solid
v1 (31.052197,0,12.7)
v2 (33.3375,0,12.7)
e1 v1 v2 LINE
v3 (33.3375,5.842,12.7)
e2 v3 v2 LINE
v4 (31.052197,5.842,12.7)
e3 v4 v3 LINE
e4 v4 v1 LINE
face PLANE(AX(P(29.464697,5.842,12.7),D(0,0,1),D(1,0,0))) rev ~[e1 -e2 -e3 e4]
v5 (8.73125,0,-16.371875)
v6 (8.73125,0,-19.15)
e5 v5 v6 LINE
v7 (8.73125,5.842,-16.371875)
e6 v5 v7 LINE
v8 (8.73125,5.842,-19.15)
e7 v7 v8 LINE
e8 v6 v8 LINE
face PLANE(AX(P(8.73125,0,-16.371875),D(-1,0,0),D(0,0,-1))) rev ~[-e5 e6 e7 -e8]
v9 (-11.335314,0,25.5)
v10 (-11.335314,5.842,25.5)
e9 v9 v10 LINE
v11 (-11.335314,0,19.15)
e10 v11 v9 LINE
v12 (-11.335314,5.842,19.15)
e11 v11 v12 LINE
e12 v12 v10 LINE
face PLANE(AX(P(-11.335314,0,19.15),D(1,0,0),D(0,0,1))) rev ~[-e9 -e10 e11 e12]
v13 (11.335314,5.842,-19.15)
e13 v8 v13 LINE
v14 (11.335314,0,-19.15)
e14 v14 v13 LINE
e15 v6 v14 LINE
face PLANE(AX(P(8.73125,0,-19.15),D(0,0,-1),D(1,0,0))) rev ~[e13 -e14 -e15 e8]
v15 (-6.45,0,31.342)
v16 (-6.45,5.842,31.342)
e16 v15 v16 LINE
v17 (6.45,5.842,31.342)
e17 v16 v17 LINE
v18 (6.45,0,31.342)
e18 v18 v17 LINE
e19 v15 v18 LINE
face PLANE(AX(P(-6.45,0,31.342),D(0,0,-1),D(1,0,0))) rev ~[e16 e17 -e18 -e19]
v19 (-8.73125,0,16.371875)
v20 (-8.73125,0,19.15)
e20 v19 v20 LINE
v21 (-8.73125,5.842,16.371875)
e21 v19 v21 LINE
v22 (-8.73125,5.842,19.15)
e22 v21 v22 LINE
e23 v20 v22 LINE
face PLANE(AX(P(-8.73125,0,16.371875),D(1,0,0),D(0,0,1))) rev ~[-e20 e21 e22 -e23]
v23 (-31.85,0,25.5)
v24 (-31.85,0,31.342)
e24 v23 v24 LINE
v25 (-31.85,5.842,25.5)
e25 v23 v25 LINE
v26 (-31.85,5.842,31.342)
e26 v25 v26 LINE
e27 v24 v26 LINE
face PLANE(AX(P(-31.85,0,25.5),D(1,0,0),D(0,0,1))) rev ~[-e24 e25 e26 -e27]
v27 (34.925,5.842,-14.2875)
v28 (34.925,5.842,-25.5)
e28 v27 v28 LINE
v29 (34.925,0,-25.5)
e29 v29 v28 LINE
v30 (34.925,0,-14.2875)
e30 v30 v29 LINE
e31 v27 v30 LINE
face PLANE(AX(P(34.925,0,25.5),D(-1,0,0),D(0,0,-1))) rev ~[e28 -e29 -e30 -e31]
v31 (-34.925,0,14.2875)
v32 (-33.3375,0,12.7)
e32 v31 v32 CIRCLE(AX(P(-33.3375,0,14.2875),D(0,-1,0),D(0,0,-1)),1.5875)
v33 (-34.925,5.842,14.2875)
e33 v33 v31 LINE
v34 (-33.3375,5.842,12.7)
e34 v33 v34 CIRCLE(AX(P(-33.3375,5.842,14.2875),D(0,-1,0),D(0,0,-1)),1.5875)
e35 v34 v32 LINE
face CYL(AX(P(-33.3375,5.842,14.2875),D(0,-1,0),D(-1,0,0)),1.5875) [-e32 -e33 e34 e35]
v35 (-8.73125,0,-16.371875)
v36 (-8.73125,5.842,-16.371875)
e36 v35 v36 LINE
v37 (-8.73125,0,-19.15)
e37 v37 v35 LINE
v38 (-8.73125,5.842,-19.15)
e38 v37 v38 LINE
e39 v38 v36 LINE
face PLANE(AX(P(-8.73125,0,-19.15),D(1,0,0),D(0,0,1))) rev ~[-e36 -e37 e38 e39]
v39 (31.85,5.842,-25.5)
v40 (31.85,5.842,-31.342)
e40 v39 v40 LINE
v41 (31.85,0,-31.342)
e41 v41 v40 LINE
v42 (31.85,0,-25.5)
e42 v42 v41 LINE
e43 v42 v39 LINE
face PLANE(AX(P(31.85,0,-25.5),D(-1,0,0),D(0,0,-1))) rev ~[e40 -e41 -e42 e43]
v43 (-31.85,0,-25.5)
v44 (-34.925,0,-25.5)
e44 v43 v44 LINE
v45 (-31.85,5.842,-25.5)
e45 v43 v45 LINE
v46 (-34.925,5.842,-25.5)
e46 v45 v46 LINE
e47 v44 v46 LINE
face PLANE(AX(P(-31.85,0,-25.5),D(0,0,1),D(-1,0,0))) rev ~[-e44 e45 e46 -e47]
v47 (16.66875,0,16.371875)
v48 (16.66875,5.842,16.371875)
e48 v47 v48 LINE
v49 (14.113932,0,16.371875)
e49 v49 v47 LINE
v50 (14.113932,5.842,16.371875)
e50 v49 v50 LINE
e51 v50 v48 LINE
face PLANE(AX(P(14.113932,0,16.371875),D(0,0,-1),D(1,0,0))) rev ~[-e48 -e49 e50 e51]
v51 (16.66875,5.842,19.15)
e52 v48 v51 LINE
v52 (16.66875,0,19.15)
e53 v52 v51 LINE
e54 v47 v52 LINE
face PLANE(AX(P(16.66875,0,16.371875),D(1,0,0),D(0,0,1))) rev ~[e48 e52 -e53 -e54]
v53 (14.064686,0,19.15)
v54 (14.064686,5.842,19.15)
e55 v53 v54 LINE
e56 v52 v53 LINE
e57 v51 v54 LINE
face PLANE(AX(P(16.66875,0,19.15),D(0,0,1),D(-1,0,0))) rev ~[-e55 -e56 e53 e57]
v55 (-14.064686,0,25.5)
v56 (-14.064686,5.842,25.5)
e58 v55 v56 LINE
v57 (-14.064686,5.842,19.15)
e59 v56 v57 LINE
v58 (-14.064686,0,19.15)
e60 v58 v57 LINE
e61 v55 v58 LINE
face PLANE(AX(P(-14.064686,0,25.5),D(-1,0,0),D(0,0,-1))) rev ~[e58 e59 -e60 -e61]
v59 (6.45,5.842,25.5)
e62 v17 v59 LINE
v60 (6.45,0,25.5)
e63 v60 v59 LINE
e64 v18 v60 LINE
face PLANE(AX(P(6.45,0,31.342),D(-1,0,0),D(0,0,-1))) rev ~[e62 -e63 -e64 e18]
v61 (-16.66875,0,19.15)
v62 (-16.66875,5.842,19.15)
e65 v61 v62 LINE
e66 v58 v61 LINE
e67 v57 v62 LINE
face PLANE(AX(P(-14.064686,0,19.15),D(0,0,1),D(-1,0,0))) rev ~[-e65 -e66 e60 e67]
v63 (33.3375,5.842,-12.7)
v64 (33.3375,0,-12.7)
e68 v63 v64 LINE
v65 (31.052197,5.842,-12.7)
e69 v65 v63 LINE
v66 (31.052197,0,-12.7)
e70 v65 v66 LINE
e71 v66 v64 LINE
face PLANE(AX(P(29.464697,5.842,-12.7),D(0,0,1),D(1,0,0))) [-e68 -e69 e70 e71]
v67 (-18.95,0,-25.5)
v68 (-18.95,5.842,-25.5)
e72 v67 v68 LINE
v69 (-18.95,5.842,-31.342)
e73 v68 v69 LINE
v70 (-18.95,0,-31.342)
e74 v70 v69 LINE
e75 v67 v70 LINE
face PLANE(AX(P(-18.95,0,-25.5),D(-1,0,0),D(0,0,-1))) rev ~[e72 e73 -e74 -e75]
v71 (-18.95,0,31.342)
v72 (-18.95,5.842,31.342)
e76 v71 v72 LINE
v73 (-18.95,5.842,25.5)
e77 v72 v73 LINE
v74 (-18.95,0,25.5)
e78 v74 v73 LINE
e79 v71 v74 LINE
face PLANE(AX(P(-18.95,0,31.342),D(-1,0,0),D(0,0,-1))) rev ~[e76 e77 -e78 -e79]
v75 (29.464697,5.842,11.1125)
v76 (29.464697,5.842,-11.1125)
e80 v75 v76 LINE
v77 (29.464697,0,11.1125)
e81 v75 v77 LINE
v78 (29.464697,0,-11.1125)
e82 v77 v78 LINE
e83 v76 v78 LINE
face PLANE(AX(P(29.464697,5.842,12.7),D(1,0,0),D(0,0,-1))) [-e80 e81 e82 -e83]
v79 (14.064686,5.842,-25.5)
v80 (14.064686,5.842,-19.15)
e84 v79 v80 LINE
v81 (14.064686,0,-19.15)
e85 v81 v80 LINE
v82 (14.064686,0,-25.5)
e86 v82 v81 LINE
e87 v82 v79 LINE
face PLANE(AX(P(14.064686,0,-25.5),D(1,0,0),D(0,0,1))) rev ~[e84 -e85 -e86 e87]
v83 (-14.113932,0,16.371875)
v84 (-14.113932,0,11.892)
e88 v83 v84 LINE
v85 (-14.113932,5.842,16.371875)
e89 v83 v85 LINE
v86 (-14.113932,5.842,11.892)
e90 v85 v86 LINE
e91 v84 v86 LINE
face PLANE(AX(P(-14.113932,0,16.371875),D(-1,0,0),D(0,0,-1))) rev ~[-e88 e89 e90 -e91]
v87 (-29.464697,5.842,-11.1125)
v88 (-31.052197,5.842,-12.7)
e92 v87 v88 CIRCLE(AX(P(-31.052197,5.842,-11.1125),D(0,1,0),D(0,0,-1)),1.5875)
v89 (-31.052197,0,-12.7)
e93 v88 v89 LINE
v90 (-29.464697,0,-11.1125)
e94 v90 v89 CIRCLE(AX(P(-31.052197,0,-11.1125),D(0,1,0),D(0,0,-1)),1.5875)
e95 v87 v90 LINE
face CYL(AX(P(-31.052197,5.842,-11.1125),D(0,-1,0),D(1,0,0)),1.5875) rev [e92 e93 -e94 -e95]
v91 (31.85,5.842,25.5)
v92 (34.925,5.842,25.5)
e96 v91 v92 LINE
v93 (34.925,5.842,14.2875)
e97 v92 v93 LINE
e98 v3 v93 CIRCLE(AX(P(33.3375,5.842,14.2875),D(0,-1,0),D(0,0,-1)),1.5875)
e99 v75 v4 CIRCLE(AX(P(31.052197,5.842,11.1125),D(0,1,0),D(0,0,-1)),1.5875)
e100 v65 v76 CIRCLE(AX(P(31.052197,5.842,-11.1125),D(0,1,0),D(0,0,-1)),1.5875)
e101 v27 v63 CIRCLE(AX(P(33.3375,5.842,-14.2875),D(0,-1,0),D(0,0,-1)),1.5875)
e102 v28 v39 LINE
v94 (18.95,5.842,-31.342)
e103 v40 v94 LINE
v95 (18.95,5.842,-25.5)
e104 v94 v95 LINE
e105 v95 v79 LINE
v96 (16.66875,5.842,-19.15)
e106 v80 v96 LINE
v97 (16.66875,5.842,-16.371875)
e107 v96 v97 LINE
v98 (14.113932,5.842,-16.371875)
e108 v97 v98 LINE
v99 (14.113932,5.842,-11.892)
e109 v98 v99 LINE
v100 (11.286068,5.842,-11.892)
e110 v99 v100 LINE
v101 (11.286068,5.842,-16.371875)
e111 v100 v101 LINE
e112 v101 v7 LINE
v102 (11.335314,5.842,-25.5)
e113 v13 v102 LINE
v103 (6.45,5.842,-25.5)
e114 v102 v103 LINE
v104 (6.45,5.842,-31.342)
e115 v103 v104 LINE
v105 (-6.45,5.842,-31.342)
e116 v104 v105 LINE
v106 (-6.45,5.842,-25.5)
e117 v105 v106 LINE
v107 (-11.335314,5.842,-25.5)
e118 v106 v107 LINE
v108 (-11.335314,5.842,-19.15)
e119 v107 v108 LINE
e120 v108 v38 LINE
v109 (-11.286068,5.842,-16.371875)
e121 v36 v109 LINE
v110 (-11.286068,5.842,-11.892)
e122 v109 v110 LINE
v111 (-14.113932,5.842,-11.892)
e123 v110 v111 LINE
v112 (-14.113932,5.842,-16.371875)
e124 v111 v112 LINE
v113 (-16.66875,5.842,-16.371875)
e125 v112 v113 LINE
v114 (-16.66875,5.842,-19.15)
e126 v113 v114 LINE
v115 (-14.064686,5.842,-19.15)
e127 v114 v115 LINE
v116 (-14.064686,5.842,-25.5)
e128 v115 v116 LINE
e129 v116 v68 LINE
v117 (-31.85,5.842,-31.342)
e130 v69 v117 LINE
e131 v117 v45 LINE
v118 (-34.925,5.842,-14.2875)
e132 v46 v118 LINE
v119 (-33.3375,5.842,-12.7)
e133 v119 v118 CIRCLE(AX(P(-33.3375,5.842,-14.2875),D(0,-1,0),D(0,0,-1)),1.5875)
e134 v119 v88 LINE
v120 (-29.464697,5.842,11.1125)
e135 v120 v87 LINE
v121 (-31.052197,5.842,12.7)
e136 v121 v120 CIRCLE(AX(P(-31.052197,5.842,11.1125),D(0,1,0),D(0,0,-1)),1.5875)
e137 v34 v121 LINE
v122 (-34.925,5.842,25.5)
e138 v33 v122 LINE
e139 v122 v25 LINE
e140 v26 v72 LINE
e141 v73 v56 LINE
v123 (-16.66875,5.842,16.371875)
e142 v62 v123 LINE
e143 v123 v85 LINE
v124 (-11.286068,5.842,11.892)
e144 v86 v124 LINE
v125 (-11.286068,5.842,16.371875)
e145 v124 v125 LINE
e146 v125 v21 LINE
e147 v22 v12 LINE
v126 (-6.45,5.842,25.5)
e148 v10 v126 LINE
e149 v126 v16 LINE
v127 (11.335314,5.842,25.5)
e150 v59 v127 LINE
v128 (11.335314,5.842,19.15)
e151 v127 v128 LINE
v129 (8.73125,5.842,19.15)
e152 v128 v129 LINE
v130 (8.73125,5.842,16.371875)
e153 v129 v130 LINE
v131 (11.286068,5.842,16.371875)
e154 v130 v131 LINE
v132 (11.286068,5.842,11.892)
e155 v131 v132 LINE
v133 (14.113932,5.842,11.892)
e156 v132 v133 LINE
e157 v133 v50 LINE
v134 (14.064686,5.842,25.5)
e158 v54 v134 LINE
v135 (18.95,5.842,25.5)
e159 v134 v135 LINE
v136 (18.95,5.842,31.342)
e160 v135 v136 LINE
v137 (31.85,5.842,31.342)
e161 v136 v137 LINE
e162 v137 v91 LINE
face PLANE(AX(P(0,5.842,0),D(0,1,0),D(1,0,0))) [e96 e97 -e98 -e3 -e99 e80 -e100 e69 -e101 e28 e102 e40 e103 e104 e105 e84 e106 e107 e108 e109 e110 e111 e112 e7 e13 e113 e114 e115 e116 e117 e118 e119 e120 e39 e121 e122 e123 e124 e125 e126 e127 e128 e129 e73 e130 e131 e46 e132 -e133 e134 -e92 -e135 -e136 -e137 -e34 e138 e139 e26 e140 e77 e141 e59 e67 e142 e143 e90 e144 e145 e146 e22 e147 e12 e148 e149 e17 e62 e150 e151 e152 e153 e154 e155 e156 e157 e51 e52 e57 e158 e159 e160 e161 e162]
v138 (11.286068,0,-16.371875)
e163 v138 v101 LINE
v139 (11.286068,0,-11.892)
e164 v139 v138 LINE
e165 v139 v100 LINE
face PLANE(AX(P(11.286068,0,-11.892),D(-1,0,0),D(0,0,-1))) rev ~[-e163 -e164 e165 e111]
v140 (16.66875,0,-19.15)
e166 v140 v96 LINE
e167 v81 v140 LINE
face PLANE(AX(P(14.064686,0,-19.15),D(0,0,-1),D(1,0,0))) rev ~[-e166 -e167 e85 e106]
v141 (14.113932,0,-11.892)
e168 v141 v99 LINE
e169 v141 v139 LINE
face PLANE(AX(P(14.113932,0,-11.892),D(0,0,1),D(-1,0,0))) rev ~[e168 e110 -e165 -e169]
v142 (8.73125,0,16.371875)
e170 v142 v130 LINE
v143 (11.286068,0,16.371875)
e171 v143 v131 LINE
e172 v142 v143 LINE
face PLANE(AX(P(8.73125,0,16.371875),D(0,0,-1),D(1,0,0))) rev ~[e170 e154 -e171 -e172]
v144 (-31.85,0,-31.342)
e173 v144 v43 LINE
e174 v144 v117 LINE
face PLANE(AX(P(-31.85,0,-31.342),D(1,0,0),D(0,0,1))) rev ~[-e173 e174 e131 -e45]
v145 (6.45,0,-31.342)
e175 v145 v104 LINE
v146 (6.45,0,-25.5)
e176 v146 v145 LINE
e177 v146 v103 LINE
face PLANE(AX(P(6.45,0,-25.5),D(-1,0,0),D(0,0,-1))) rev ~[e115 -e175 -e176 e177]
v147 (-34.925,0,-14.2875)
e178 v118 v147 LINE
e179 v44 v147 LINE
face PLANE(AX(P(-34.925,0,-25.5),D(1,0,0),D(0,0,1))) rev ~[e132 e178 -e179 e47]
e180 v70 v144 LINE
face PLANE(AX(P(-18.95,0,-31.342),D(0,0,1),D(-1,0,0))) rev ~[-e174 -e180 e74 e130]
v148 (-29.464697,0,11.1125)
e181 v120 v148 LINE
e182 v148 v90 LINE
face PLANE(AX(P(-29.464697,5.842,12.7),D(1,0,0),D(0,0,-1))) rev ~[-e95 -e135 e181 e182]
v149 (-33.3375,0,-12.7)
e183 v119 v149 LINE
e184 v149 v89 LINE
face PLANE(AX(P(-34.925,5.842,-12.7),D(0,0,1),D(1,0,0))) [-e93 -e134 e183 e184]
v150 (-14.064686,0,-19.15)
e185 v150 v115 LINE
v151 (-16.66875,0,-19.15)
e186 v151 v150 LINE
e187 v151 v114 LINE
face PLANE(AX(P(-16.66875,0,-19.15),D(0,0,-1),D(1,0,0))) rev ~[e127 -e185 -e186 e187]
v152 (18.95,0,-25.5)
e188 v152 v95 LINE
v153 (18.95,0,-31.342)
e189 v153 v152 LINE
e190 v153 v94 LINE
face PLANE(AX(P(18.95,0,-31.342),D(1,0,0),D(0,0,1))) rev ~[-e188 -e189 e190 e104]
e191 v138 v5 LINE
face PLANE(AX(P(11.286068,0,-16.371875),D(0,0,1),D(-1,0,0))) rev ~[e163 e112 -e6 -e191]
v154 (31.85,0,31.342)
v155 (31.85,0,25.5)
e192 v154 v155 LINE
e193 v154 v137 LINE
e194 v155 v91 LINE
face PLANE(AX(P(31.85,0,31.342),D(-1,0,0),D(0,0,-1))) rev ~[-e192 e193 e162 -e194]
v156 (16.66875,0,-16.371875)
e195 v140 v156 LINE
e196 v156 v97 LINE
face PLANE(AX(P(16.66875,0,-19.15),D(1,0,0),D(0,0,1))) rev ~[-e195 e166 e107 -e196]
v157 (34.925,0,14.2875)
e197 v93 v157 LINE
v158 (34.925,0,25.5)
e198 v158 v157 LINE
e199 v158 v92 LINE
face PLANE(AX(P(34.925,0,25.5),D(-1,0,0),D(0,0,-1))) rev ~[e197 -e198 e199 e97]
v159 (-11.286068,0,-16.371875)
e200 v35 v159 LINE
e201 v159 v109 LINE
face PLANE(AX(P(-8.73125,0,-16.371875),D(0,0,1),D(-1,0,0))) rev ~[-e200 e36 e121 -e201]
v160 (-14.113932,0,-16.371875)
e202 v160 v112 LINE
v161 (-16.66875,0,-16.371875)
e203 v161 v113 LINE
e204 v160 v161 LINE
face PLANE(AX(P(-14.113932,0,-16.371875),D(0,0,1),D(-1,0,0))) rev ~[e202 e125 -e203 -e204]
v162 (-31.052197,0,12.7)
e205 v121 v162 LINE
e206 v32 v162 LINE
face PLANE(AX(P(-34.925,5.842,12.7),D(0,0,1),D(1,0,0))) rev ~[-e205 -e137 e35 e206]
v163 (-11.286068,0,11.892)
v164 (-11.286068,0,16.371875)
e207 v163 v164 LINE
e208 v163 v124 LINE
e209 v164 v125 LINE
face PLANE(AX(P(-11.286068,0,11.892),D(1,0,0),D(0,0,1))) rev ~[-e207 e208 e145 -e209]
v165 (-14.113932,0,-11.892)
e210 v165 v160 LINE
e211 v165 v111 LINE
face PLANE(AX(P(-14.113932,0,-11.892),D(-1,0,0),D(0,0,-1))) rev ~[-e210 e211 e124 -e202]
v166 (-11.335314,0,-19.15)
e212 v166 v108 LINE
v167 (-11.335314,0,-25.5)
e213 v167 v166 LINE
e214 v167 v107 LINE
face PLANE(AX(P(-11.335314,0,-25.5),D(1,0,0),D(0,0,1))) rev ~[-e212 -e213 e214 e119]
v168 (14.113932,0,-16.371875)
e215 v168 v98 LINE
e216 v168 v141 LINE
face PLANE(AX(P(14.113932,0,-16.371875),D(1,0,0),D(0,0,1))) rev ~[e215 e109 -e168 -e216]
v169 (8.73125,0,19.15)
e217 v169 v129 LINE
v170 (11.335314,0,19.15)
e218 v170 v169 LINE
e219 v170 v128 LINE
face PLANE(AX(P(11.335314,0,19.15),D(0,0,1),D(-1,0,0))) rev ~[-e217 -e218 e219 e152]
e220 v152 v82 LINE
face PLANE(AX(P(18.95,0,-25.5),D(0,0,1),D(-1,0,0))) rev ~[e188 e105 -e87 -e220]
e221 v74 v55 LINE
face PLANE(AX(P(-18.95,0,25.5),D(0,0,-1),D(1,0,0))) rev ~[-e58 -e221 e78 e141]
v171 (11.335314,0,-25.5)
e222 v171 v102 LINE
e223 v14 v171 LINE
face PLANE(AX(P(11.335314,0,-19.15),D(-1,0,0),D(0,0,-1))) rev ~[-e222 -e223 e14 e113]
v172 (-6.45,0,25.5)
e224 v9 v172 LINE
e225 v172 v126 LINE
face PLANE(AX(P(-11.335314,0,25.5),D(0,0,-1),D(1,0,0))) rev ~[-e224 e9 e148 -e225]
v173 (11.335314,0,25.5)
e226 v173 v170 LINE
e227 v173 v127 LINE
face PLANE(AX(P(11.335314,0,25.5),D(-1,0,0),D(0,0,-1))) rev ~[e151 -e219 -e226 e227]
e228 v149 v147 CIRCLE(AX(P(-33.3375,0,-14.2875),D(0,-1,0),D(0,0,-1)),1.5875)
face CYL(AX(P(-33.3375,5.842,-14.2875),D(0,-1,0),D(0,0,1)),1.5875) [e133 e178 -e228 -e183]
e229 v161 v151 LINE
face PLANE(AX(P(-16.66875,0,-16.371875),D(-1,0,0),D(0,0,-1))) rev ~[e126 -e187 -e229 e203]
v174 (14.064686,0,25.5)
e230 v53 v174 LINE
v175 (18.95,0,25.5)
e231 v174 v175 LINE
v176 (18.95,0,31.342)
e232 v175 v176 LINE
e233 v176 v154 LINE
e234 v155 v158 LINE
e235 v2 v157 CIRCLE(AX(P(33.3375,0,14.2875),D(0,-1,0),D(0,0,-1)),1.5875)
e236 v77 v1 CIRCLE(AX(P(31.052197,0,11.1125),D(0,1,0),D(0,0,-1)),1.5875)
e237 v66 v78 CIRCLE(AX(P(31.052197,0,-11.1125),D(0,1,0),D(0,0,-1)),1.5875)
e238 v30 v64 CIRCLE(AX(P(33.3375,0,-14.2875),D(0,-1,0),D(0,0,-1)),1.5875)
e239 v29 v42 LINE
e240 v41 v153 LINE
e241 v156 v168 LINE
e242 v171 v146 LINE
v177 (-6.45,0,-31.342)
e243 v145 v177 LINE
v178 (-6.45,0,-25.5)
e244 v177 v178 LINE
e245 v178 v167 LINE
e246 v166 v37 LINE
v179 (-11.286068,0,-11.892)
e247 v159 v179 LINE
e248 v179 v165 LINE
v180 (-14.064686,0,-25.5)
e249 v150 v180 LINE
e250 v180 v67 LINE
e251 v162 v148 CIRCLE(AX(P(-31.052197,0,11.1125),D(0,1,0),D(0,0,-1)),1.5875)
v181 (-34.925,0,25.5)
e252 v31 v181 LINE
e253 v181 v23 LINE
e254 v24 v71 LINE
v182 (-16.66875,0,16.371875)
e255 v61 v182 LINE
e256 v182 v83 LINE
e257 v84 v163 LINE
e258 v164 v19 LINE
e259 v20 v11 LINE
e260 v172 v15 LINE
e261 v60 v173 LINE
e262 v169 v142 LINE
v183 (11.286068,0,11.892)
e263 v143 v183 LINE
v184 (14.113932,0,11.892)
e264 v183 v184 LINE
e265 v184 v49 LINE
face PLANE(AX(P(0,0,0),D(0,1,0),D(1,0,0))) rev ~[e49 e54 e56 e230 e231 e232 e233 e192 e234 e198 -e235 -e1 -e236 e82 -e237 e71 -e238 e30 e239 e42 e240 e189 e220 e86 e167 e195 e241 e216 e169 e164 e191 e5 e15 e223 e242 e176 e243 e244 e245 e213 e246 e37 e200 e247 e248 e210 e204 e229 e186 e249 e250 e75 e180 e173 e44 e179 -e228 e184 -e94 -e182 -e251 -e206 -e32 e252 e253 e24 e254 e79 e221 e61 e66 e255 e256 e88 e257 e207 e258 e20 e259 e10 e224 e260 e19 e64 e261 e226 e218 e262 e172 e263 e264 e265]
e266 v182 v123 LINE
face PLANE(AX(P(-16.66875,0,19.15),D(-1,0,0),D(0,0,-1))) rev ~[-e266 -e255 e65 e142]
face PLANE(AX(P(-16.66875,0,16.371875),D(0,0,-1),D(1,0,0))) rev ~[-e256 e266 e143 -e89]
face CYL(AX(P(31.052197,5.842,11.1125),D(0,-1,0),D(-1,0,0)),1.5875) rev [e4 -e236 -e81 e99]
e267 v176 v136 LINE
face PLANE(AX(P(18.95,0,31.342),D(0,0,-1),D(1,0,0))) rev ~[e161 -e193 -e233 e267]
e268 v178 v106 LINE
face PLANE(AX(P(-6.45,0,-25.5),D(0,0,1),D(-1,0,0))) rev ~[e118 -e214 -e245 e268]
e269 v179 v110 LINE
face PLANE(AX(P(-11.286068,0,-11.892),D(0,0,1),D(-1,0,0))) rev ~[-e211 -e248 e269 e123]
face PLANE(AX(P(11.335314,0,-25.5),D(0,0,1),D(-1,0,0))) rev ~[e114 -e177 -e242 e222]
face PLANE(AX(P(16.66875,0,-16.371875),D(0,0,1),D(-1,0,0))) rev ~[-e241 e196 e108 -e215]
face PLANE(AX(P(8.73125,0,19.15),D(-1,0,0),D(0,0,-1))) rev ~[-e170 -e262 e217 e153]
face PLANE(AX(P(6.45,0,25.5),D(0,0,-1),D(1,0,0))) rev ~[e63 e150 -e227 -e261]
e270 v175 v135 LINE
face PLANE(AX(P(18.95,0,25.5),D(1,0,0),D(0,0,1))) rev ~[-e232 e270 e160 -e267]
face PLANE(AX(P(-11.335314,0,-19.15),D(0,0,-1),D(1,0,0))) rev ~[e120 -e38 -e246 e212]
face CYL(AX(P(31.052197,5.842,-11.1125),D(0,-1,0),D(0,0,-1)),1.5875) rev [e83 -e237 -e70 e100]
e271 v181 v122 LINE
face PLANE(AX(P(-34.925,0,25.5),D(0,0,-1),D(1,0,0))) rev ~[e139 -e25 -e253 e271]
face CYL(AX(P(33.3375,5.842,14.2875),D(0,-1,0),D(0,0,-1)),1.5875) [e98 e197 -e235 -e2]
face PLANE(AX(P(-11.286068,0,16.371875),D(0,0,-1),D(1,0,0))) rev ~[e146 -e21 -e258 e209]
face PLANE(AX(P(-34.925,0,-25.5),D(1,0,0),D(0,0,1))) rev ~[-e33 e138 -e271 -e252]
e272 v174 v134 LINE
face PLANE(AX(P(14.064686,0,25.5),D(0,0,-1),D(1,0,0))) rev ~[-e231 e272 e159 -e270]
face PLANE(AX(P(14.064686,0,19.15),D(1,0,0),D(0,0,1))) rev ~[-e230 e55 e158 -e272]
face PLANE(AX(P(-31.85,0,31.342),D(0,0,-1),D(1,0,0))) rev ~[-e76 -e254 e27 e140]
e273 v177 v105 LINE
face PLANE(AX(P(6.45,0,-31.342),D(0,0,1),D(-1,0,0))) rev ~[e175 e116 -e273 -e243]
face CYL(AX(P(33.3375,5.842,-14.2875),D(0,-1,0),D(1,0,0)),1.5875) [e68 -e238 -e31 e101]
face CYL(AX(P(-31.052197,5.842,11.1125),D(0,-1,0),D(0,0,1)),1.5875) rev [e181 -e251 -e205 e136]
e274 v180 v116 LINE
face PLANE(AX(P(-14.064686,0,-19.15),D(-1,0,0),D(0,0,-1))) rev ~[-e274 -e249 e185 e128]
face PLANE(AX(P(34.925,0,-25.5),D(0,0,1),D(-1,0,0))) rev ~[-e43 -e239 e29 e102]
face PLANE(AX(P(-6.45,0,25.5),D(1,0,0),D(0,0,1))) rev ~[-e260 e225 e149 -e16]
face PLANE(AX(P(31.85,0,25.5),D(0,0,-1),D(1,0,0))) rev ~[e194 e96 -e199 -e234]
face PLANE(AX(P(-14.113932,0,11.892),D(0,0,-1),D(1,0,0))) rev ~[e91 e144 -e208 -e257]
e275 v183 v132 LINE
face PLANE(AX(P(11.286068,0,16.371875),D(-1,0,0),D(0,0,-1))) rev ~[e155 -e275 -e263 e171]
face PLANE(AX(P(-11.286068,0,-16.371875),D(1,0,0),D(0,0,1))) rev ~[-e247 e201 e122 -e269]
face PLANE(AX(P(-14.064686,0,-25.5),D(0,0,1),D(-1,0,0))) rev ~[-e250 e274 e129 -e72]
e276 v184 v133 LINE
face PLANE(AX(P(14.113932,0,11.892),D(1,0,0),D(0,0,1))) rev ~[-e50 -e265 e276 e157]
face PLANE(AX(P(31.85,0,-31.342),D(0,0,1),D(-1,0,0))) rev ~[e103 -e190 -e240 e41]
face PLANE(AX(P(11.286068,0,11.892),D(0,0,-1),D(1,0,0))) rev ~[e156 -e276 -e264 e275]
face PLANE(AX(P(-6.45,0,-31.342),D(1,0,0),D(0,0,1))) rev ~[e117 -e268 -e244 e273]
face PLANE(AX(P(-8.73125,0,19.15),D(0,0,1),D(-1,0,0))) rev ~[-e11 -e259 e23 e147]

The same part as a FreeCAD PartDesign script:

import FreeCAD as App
import Part
import Sketcher
Q = App.Units.Quantity


def edges_at(feature, points):
    """Names of the edges that pass closest to the given points."""
    edges = feature.Shape.Edges
    near = lambda p: min(range(len(edges)), key=lambda i: edges[i].distToShape(Part.Vertex(*p))[0])
    return sorted({f"Edge{near(p) + 1}" for p in points})

doc = App.newDocument("Part")
body = doc.addObject("PartDesign::Body", "Body")

# Sketch on XZ plane
sketch1 = body.newObject("Sketcher::SketchObject", "Sketch")
sketch1.AttachmentSupport = (doc.getObject("XZ_Plane"), [""])
sketch1.MapMode = "FlatFace"
sketch1.addGeometry(Part.LineSegment(App.Vector(-6.45, -31.342, 0), App.Vector(-6.45, -25.5, 0)), False)
sketch1.addGeometry(Part.LineSegment(App.Vector(-6.45, -25.5, 0), App.Vector(-11.335314, -25.5, 0)), False)
sketch1.addGeometry(Part.LineSegment(App.Vector(-11.335314, -25.5, 0), App.Vector(-11.335314, -19.15, 0)), False)
sketch1.addGeometry(Part.LineSegment(App.Vector(-11.335314, -19.15, 0), App.Vector(-8.73125, -19.15, 0)), False)
sketch1.addGeometry(Part.LineSegment(App.Vector(-8.73125, -19.15, 0), App.Vector(-8.73125, -16.371875, 0)), False)
sketch1.addGeometry(Part.LineSegment(App.Vector(-8.73125, -16.371875, 0), App.Vector(-11.286068, -16.371875, 0)), False)
sketch1.addGeometry(Part.LineSegment(App.Vector(-11.286068, -16.371875, 0), App.Vector(-11.286068, -11.892, 0)), False)
sketch1.addGeometry(Part.LineSegment(App.Vector(-11.286068, -11.892, 0), App.Vector(-14.113932, -11.892, 0)), False)
sketch1.addGeometry(Part.LineSegment(App.Vector(-14.113932, -11.892, 0), App.Vector(-14.113932, -16.371875, 0)), False)
sketch1.addGeometry(Part.LineSegment(App.Vector(-14.113932, -16.371875, 0), App.Vector(-16.66875, -16.371875, 0)), False)
sketch1.addGeometry(Part.LineSegment(App.Vector(-16.66875, -16.371875, 0), App.Vector(-16.66875, -19.15, 0)), False)
sketch1.addGeometry(Part.LineSegment(App.Vector(-16.66875, -19.15, 0), App.Vector(-14.064686, -19.15, 0)), False)
sketch1.addGeometry(Part.LineSegment(App.Vector(-14.064686, -19.15, 0), App.Vector(-14.064686, -25.5, 0)), False)
sketch1.addGeometry(Part.LineSegment(App.Vector(-14.064686, -25.5, 0), App.Vector(-18.95, -25.5, 0)), False)
sketch1.addGeometry(Part.LineSegment(App.Vector(-18.95, -25.5, 0), App.Vector(-18.95, -31.342, 0)), False)
sketch1.addGeometry(Part.LineSegment(App.Vector(-18.95, -31.342, 0), App.Vector(-31.85, -31.342, 0)), False)
sketch1.addGeometry(Part.LineSegment(App.Vector(-31.85, -31.342, 0), App.Vector(-31.85, -25.5, 0)), False)
sketch1.addGeometry(Part.LineSegment(App.Vector(-31.85, -25.5, 0), App.Vector(-34.925, -25.5, 0)), False)
sketch1.addGeometry(Part.LineSegment(App.Vector(-34.925, -25.5, 0), App.Vector(-34.925, 25.5, 0)), False)
sketch1.addGeometry(Part.LineSegment(App.Vector(-34.925, 25.5, 0), App.Vector(-31.85, 25.5, 0)), False)
sketch1.addGeometry(Part.LineSegment(App.Vector(-31.85, 25.5, 0), App.Vector(-31.85, 31.342, 0)), False)
sketch1.addGeometry(Part.LineSegment(App.Vector(-31.85, 31.342, 0), App.Vector(-18.95, 31.342, 0)), False)
sketch1.addGeometry(Part.LineSegment(App.Vector(-18.95, 31.342, 0), App.Vector(-18.95, 25.5, 0)), False)
sketch1.addGeometry(Part.LineSegment(App.Vector(-18.95, 25.5, 0), App.Vector(-14.064686, 25.5, 0)), False)
sketch1.addGeometry(Part.LineSegment(App.Vector(-14.064686, 25.5, 0), App.Vector(-14.064686, 19.15, 0)), False)
sketch1.addGeometry(Part.LineSegment(App.Vector(-14.064686, 19.15, 0), App.Vector(-16.66875, 19.15, 0)), False)
sketch1.addGeometry(Part.LineSegment(App.Vector(-16.66875, 19.15, 0), App.Vector(-16.66875, 16.371875, 0)), False)
sketch1.addGeometry(Part.LineSegment(App.Vector(-16.66875, 16.371875, 0), App.Vector(-14.113932, 16.371875, 0)), False)
sketch1.addGeometry(Part.LineSegment(App.Vector(-14.113932, 16.371875, 0), App.Vector(-14.113932, 11.892, 0)), False)
sketch1.addGeometry(Part.LineSegment(App.Vector(-14.113932, 11.892, 0), App.Vector(-11.286068, 11.892, 0)), False)
sketch1.addGeometry(Part.LineSegment(App.Vector(-11.286068, 11.892, 0), App.Vector(-11.286068, 16.371875, 0)), False)
sketch1.addGeometry(Part.LineSegment(App.Vector(-11.286068, 16.371875, 0), App.Vector(-8.73125, 16.371875, 0)), False)
sketch1.addGeometry(Part.LineSegment(App.Vector(-8.73125, 16.371875, 0), App.Vector(-8.73125, 19.15, 0)), False)
sketch1.addGeometry(Part.LineSegment(App.Vector(-8.73125, 19.15, 0), App.Vector(-11.335314, 19.15, 0)), False)
sketch1.addGeometry(Part.LineSegment(App.Vector(-11.335314, 19.15, 0), App.Vector(-11.335314, 25.5, 0)), False)
sketch1.addGeometry(Part.LineSegment(App.Vector(-11.335314, 25.5, 0), App.Vector(-6.45, 25.5, 0)), False)
sketch1.addGeometry(Part.LineSegment(App.Vector(-6.45, 25.5, 0), App.Vector(-6.45, 31.342, 0)), False)
sketch1.addGeometry(Part.LineSegment(App.Vector(-6.45, 31.342, 0), App.Vector(6.45, 31.342, 0)), False)
sketch1.addGeometry(Part.LineSegment(App.Vector(6.45, 31.342, 0), App.Vector(6.45, 25.5, 0)), False)
sketch1.addGeometry(Part.LineSegment(App.Vector(6.45, 25.5, 0), App.Vector(11.335314, 25.5, 0)), False)
sketch1.addGeometry(Part.LineSegment(App.Vector(11.335314, 25.5, 0), App.Vector(11.335314, 19.15, 0)), False)
sketch1.addGeometry(Part.LineSegment(App.Vector(11.335314, 19.15, 0), App.Vector(8.73125, 19.15, 0)), False)
sketch1.addGeometry(Part.LineSegment(App.Vector(8.73125, 19.15, 0), App.Vector(8.73125, 16.371875, 0)), False)
sketch1.addGeometry(Part.LineSegment(App.Vector(8.73125, 16.371875, 0), App.Vector(11.286068, 16.371875, 0)), False)
sketch1.addGeometry(Part.LineSegment(App.Vector(11.286068, 16.371875, 0), App.Vector(11.286068, 11.892, 0)), False)
sketch1.addGeometry(Part.LineSegment(App.Vector(11.286068, 11.892, 0), App.Vector(14.113932, 11.892, 0)), False)
sketch1.addGeometry(Part.LineSegment(App.Vector(14.113932, 11.892, 0), App.Vector(14.113932, 16.371875, 0)), False)
sketch1.addGeometry(Part.LineSegment(App.Vector(14.113932, 16.371875, 0), App.Vector(16.66875, 16.371875, 0)), False)
sketch1.addGeometry(Part.LineSegment(App.Vector(16.66875, 16.371875, 0), App.Vector(16.66875, 19.15, 0)), False)
sketch1.addGeometry(Part.LineSegment(App.Vector(16.66875, 19.15, 0), App.Vector(14.064686, 19.15, 0)), False)
sketch1.addGeometry(Part.LineSegment(App.Vector(14.064686, 19.15, 0), App.Vector(14.064686, 25.5, 0)), False)
sketch1.addGeometry(Part.LineSegment(App.Vector(14.064686, 25.5, 0), App.Vector(18.95, 25.5, 0)), False)
sketch1.addGeometry(Part.LineSegment(App.Vector(18.95, 25.5, 0), App.Vector(18.95, 31.342, 0)), False)
sketch1.addGeometry(Part.LineSegment(App.Vector(18.95, 31.342, 0), App.Vector(31.85, 31.342, 0)), False)
sketch1.addGeometry(Part.LineSegment(App.Vector(31.85, 31.342, 0), App.Vector(31.85, 25.5, 0)), False)
sketch1.addGeometry(Part.LineSegment(App.Vector(31.85, 25.5, 0), App.Vector(34.925, 25.5, 0)), False)
sketch1.addGeometry(Part.LineSegment(App.Vector(34.925, 25.5, 0), App.Vector(34.925, -25.5, 0)), False)
sketch1.addGeometry(Part.LineSegment(App.Vector(34.925, -25.5, 0), App.Vector(31.85, -25.5, 0)), False)
sketch1.addGeometry(Part.LineSegment(App.Vector(31.85, -25.5, 0), App.Vector(31.85, -31.342, 0)), False)
sketch1.addGeometry(Part.LineSegment(App.Vector(31.85, -31.342, 0), App.Vector(18.95, -31.342, 0)), False)
sketch1.addGeometry(Part.LineSegment(App.Vector(18.95, -31.342, 0), App.Vector(18.95, -25.5, 0)), False)
sketch1.addGeometry(Part.LineSegment(App.Vector(18.95, -25.5, 0), App.Vector(14.064686, -25.5, 0)), False)
sketch1.addGeometry(Part.LineSegment(App.Vector(14.064686, -25.5, 0), App.Vector(14.064686, -19.15, 0)), False)
sketch1.addGeometry(Part.LineSegment(App.Vector(14.064686, -19.15, 0), App.Vector(16.66875, -19.15, 0)), False)
sketch1.addGeometry(Part.LineSegment(App.Vector(16.66875, -19.15, 0), App.Vector(16.66875, -16.371875, 0)), False)
sketch1.addGeometry(Part.LineSegment(App.Vector(16.66875, -16.371875, 0), App.Vector(14.113932, -16.371875, 0)), False)
sketch1.addGeometry(Part.LineSegment(App.Vector(14.113932, -16.371875, 0), App.Vector(14.113932, -11.892, 0)), False)
sketch1.addGeometry(Part.LineSegment(App.Vector(14.113932, -11.892, 0), App.Vector(11.286068, -11.892, 0)), False)
sketch1.addGeometry(Part.LineSegment(App.Vector(11.286068, -11.892, 0), App.Vector(11.286068, -16.371875, 0)), False)
sketch1.addGeometry(Part.LineSegment(App.Vector(11.286068, -16.371875, 0), App.Vector(8.73125, -16.371875, 0)), False)
sketch1.addGeometry(Part.LineSegment(App.Vector(8.73125, -16.371875, 0), App.Vector(8.73125, -19.15, 0)), False)
sketch1.addGeometry(Part.LineSegment(App.Vector(8.73125, -19.15, 0), App.Vector(11.335314, -19.15, 0)), False)
sketch1.addGeometry(Part.LineSegment(App.Vector(11.335314, -19.15, 0), App.Vector(11.335314, -25.5, 0)), False)
sketch1.addGeometry(Part.LineSegment(App.Vector(11.335314, -25.5, 0), App.Vector(6.45, -25.5, 0)), False)
sketch1.addGeometry(Part.LineSegment(App.Vector(6.45, -25.5, 0), App.Vector(6.45, -31.342, 0)), False)
sketch1.addGeometry(Part.LineSegment(App.Vector(6.45, -31.342, 0), App.Vector(-6.45, -31.342, 0)), False)
sketch1.addConstraint(Sketcher.Constraint("Coincident", 0, 2, 1, 1))
sketch1.addConstraint(Sketcher.Constraint("Coincident", 1, 2, 2, 1))
sketch1.addConstraint(Sketcher.Constraint("Coincident", 2, 2, 3, 1))
sketch1.addConstraint(Sketcher.Constraint("Coincident", 3, 2, 4, 1))
sketch1.addConstraint(Sketcher.Constraint("Coincident", 4, 2, 5, 1))
sketch1.addConstraint(Sketcher.Constraint("Coincident", 5, 2, 6, 1))
sketch1.addConstraint(Sketcher.Constraint("Coincident", 6, 2, 7, 1))
sketch1.addConstraint(Sketcher.Constraint("Coincident", 7, 2, 8, 1))
sketch1.addConstraint(Sketcher.Constraint("Coincident", 8, 2, 9, 1))
sketch1.addConstraint(Sketcher.Constraint("Coincident", 9, 2, 10, 1))
sketch1.addConstraint(Sketcher.Constraint("Coincident", 10, 2, 11, 1))
sketch1.addConstraint(Sketcher.Constraint("Coincident", 11, 2, 12, 1))
sketch1.addConstraint(Sketcher.Constraint("Coincident", 12, 2, 13, 1))
sketch1.addConstraint(Sketcher.Constraint("Coincident", 13, 2, 14, 1))
sketch1.addConstraint(Sketcher.Constraint("Coincident", 14, 2, 15, 1))
sketch1.addConstraint(Sketcher.Constraint("Coincident", 15, 2, 16, 1))
sketch1.addConstraint(Sketcher.Constraint("Coincident", 16, 2, 17, 1))
sketch1.addConstraint(Sketcher.Constraint("Coincident", 17, 2, 18, 1))
sketch1.addConstraint(Sketcher.Constraint("Coincident", 18, 2, 19, 1))
sketch1.addConstraint(Sketcher.Constraint("Coincident", 19, 2, 20, 1))
sketch1.addConstraint(Sketcher.Constraint("Coincident", 20, 2, 21, 1))
sketch1.addConstraint(Sketcher.Constraint("Coincident", 21, 2, 22, 1))
sketch1.addConstraint(Sketcher.Constraint("Coincident", 22, 2, 23, 1))
sketch1.addConstraint(Sketcher.Constraint("Coincident", 23, 2, 24, 1))
sketch1.addConstraint(Sketcher.Constraint("Coincident", 24, 2, 25, 1))
sketch1.addConstraint(Sketcher.Constraint("Coincident", 25, 2, 26, 1))
sketch1.addConstraint(Sketcher.Constraint("Coincident", 26, 2, 27, 1))
sketch1.addConstraint(Sketcher.Constraint("Coincident", 27, 2, 28, 1))
sketch1.addConstraint(Sketcher.Constraint("Coincident", 28, 2, 29, 1))
sketch1.addConstraint(Sketcher.Constraint("Coincident", 29, 2, 30, 1))
sketch1.addConstraint(Sketcher.Constraint("Coincident", 30, 2, 31, 1))
sketch1.addConstraint(Sketcher.Constraint("Coincident", 31, 2, 32, 1))
sketch1.addConstraint(Sketcher.Constraint("Coincident", 32, 2, 33, 1))
sketch1.addConstraint(Sketcher.Constraint("Coincident", 33, 2, 34, 1))
sketch1.addConstraint(Sketcher.Constraint("Coincident", 34, 2, 35, 1))
sketch1.addConstraint(Sketcher.Constraint("Coincident", 35, 2, 36, 1))
sketch1.addConstraint(Sketcher.Constraint("Coincident", 36, 2, 37, 1))
sketch1.addConstraint(Sketcher.Constraint("Coincident", 37, 2, 38, 1))
sketch1.addConstraint(Sketcher.Constraint("Coincident", 38, 2, 39, 1))
sketch1.addConstraint(Sketcher.Constraint("Coincident", 39, 2, 40, 1))
sketch1.addConstraint(Sketcher.Constraint("Coincident", 40, 2, 41, 1))
sketch1.addConstraint(Sketcher.Constraint("Coincident", 41, 2, 42, 1))
sketch1.addConstraint(Sketcher.Constraint("Coincident", 42, 2, 43, 1))
sketch1.addConstraint(Sketcher.Constraint("Coincident", 43, 2, 44, 1))
sketch1.addConstraint(Sketcher.Constraint("Coincident", 44, 2, 45, 1))
sketch1.addConstraint(Sketcher.Constraint("Coincident", 45, 2, 46, 1))
sketch1.addConstraint(Sketcher.Constraint("Coincident", 46, 2, 47, 1))
sketch1.addConstraint(Sketcher.Constraint("Coincident", 47, 2, 48, 1))
sketch1.addConstraint(Sketcher.Constraint("Coincident", 48, 2, 49, 1))
sketch1.addConstraint(Sketcher.Constraint("Coincident", 49, 2, 50, 1))
sketch1.addConstraint(Sketcher.Constraint("Coincident", 50, 2, 51, 1))
sketch1.addConstraint(Sketcher.Constraint("Coincident", 51, 2, 52, 1))
sketch1.addConstraint(Sketcher.Constraint("Coincident", 52, 2, 53, 1))
sketch1.addConstraint(Sketcher.Constraint("Coincident", 53, 2, 54, 1))
sketch1.addConstraint(Sketcher.Constraint("Coincident", 54, 2, 55, 1))
sketch1.addConstraint(Sketcher.Constraint("Coincident", 55, 2, 56, 1))
sketch1.addConstraint(Sketcher.Constraint("Coincident", 56, 2, 57, 1))
sketch1.addConstraint(Sketcher.Constraint("Coincident", 57, 2, 58, 1))
sketch1.addConstraint(Sketcher.Constraint("Coincident", 58, 2, 59, 1))
sketch1.addConstraint(Sketcher.Constraint("Coincident", 59, 2, 60, 1))
sketch1.addConstraint(Sketcher.Constraint("Coincident", 60, 2, 61, 1))
sketch1.addConstraint(Sketcher.Constraint("Coincident", 61, 2, 62, 1))
sketch1.addConstraint(Sketcher.Constraint("Coincident", 62, 2, 63, 1))
sketch1.addConstraint(Sketcher.Constraint("Coincident", 63, 2, 64, 1))
sketch1.addConstraint(Sketcher.Constraint("Coincident", 64, 2, 65, 1))
sketch1.addConstraint(Sketcher.Constraint("Coincident", 65, 2, 66, 1))
sketch1.addConstraint(Sketcher.Constraint("Coincident", 66, 2, 67, 1))
sketch1.addConstraint(Sketcher.Constraint("Coincident", 67, 2, 68, 1))
sketch1.addConstraint(Sketcher.Constraint("Coincident", 68, 2, 69, 1))
sketch1.addConstraint(Sketcher.Constraint("Coincident", 69, 2, 70, 1))
sketch1.addConstraint(Sketcher.Constraint("Coincident", 70, 2, 71, 1))
sketch1.addConstraint(Sketcher.Constraint("Coincident", 71, 2, 72, 1))
sketch1.addConstraint(Sketcher.Constraint("Coincident", 72, 2, 73, 1))
sketch1.addConstraint(Sketcher.Constraint("Coincident", 73, 2, 74, 1))
sketch1.addConstraint(Sketcher.Constraint("Coincident", 74, 2, 75, 1))
sketch1.addConstraint(Sketcher.Constraint("Coincident", 75, 2, 0, 1))
sketch1.addConstraint(Sketcher.Constraint("Vertical", 0))
sketch1.addConstraint(Sketcher.Constraint("Horizontal", 1))
sketch1.addConstraint(Sketcher.Constraint("Vertical", 2))
sketch1.addConstraint(Sketcher.Constraint("Horizontal", 3))
sketch1.addConstraint(Sketcher.Constraint("Vertical", 4))
sketch1.addConstraint(Sketcher.Constraint("Horizontal", 5))
sketch1.addConstraint(Sketcher.Constraint("Vertical", 6))
sketch1.addConstraint(Sketcher.Constraint("Horizontal", 7))
sketch1.addConstraint(Sketcher.Constraint("Vertical", 8))
sketch1.addConstraint(Sketcher.Constraint("Horizontal", 9))
sketch1.addConstraint(Sketcher.Constraint("Vertical", 10))
sketch1.addConstraint(Sketcher.Constraint("Horizontal", 11))
sketch1.addConstraint(Sketcher.Constraint("Vertical", 12))
sketch1.addConstraint(Sketcher.Constraint("Horizontal", 13))
sketch1.addConstraint(Sketcher.Constraint("Vertical", 14))
sketch1.addConstraint(Sketcher.Constraint("Horizontal", 15))
sketch1.addConstraint(Sketcher.Constraint("Vertical", 16))
sketch1.addConstraint(Sketcher.Constraint("Horizontal", 17))
sketch1.addConstraint(Sketcher.Constraint("Vertical", 18))
sketch1.addConstraint(Sketcher.Constraint("Horizontal", 19))
sketch1.addConstraint(Sketcher.Constraint("Vertical", 20))
sketch1.addConstraint(Sketcher.Constraint("Horizontal", 21))
sketch1.addConstraint(Sketcher.Constraint("Vertical", 22))
sketch1.addConstraint(Sketcher.Constraint("Horizontal", 23))
sketch1.addConstraint(Sketcher.Constraint("Vertical", 24))
sketch1.addConstraint(Sketcher.Constraint("Horizontal", 25))
sketch1.addConstraint(Sketcher.Constraint("Vertical", 26))
sketch1.addConstraint(Sketcher.Constraint("Horizontal", 27))
sketch1.addConstraint(Sketcher.Constraint("Vertical", 28))
sketch1.addConstraint(Sketcher.Constraint("Horizontal", 29))
sketch1.addConstraint(Sketcher.Constraint("Vertical", 30))
sketch1.addConstraint(Sketcher.Constraint("Horizontal", 31))
sketch1.addConstraint(Sketcher.Constraint("Vertical", 32))
sketch1.addConstraint(Sketcher.Constraint("Horizontal", 33))
sketch1.addConstraint(Sketcher.Constraint("Vertical", 34))
sketch1.addConstraint(Sketcher.Constraint("Horizontal", 35))
sketch1.addConstraint(Sketcher.Constraint("Vertical", 36))
sketch1.addConstraint(Sketcher.Constraint("Horizontal", 37))
sketch1.addConstraint(Sketcher.Constraint("Vertical", 38))
sketch1.addConstraint(Sketcher.Constraint("Horizontal", 39))
sketch1.addConstraint(Sketcher.Constraint("Vertical", 40))
sketch1.addConstraint(Sketcher.Constraint("Horizontal", 41))
sketch1.addConstraint(Sketcher.Constraint("Vertical", 42))
sketch1.addConstraint(Sketcher.Constraint("Horizontal", 43))
sketch1.addConstraint(Sketcher.Constraint("Vertical", 44))
sketch1.addConstraint(Sketcher.Constraint("Horizontal", 45))
sketch1.addConstraint(Sketcher.Constraint("Vertical", 46))
sketch1.addConstraint(Sketcher.Constraint("Horizontal", 47))
sketch1.addConstraint(Sketcher.Constraint("Vertical", 48))
sketch1.addConstraint(Sketcher.Constraint("Horizontal", 49))
sketch1.addConstraint(Sketcher.Constraint("Vertical", 50))
sketch1.addConstraint(Sketcher.Constraint("Horizontal", 51))
sketch1.addConstraint(Sketcher.Constraint("Vertical", 52))
sketch1.addConstraint(Sketcher.Constraint("Horizontal", 53))
sketch1.addConstraint(Sketcher.Constraint("Vertical", 54))
sketch1.addConstraint(Sketcher.Constraint("Horizontal", 55))
sketch1.addConstraint(Sketcher.Constraint("Vertical", 56))
sketch1.addConstraint(Sketcher.Constraint("Horizontal", 57))
sketch1.addConstraint(Sketcher.Constraint("Vertical", 58))
sketch1.addConstraint(Sketcher.Constraint("Horizontal", 59))
sketch1.addConstraint(Sketcher.Constraint("Vertical", 60))
sketch1.addConstraint(Sketcher.Constraint("Horizontal", 61))
sketch1.addConstraint(Sketcher.Constraint("Vertical", 62))
sketch1.addConstraint(Sketcher.Constraint("Horizontal", 63))
sketch1.addConstraint(Sketcher.Constraint("Vertical", 64))
sketch1.addConstraint(Sketcher.Constraint("Horizontal", 65))
sketch1.addConstraint(Sketcher.Constraint("Vertical", 66))
sketch1.addConstraint(Sketcher.Constraint("Horizontal", 67))
sketch1.addConstraint(Sketcher.Constraint("Vertical", 68))
sketch1.addConstraint(Sketcher.Constraint("Horizontal", 69))
sketch1.addConstraint(Sketcher.Constraint("Vertical", 70))
sketch1.addConstraint(Sketcher.Constraint("Horizontal", 71))
sketch1.addConstraint(Sketcher.Constraint("Vertical", 72))
sketch1.addConstraint(Sketcher.Constraint("Horizontal", 73))
sketch1.addConstraint(Sketcher.Constraint("Vertical", 74))
sketch1.addConstraint(Sketcher.Constraint("Horizontal", 75))
sketch1.addConstraint(Sketcher.Constraint("Symmetric", 0, 2, 38, 2, -1, 1))
sketch1.addConstraint(Sketcher.Constraint("Symmetric", 2, 2, 40, 2, -1, 1))
sketch1.addConstraint(Sketcher.Constraint("Symmetric", 4, 2, 42, 2, -1, 1))
sketch1.addConstraint(Sketcher.Constraint("Symmetric", 6, 2, 44, 2, -1, 1))
sketch1.addConstraint(Sketcher.Constraint("Symmetric", 8, 2, 46, 2, -1, 1))
sketch1.addConstraint(Sketcher.Constraint("Symmetric", 10, 2, 48, 2, -1, 1))
sketch1.addConstraint(Sketcher.Constraint("Symmetric", 12, 2, 50, 2, -1, 1))
sketch1.addConstraint(Sketcher.Constraint("Symmetric", 14, 2, 52, 2, -1, 1))
sketch1.addConstraint(Sketcher.Constraint("Symmetric", 16, 2, 54, 2, -1, 1))
sketch1.addConstraint(Sketcher.Constraint("Symmetric", 18, 2, 56, 2, -1, 1))
sketch1.addConstraint(Sketcher.Constraint("Symmetric", 20, 2, 58, 2, -1, 1))
sketch1.addConstraint(Sketcher.Constraint("Symmetric", 22, 2, 60, 2, -1, 1))
sketch1.addConstraint(Sketcher.Constraint("Symmetric", 24, 2, 62, 2, -1, 1))
sketch1.addConstraint(Sketcher.Constraint("Symmetric", 26, 2, 64, 2, -1, 1))
sketch1.addConstraint(Sketcher.Constraint("Symmetric", 28, 2, 66, 2, -1, 1))
sketch1.addConstraint(Sketcher.Constraint("Symmetric", 30, 2, 68, 2, -1, 1))
sketch1.addConstraint(Sketcher.Constraint("Symmetric", 32, 2, 70, 2, -1, 1))
sketch1.addConstraint(Sketcher.Constraint("Symmetric", 34, 2, 72, 2, -1, 1))
sketch1.addConstraint(Sketcher.Constraint("Symmetric", 36, 2, 74, 2, -1, 1))
sketch1.addConstraint(Sketcher.Constraint("Symmetric", 35, 2, 38, 2, -2))
sketch1.addConstraint(Sketcher.Constraint("Symmetric", 33, 2, 40, 2, -2))
sketch1.addConstraint(Sketcher.Constraint("Symmetric", 31, 2, 42, 2, -2))
sketch1.addConstraint(Sketcher.Constraint("Symmetric", 29, 2, 44, 2, -2))
sketch1.addConstraint(Sketcher.Constraint("Symmetric", 27, 2, 46, 2, -2))
sketch1.addConstraint(Sketcher.Constraint("Symmetric", 25, 2, 48, 2, -2))
sketch1.addConstraint(Sketcher.Constraint("Symmetric", 23, 2, 50, 2, -2))
sketch1.addConstraint(Sketcher.Constraint("Symmetric", 21, 2, 52, 2, -2))
sketch1.addConstraint(Sketcher.Constraint("Symmetric", 19, 2, 54, 2, -2))
sketch1.addConstraint(Sketcher.Constraint("Horizontal", 5, 2, 8, 2))
sketch1.addConstraint(Sketcher.Constraint("Horizontal", 3, 2, 10, 2))
sketch1.addConstraint(Sketcher.Constraint("Horizontal", 1, 2, 12, 2))
sketch1.addConstraint(Sketcher.Constraint("Horizontal", 13, 2, 16, 2))
sketch1.addConstraint(Sketcher.Constraint("Horizontal", 21, 2, 36, 2))
sketch1.addConstraint(Sketcher.Constraint("Equal", 5, 9))
sketch1.addConstraint(Sketcher.Constraint("Equal", 3, 11))
sketch1.addConstraint(Sketcher.Constraint("Equal", 1, 13))
sketch1.addConstraint(Sketcher.Constraint("Equal", 21, 37))
sketch1.addConstraint(Sketcher.Constraint("DistanceY", 0, 1, 0, 2, Q("0.23 in")))
sketch1.addConstraint(Sketcher.Constraint("DistanceY", 2, 1, 2, 2, Q("0.25 in")))
sketch1.addConstraint(Sketcher.Constraint("DistanceY", 4, 1, 4, 2, Q("0.109375 in")))
sketch1.addConstraint(Sketcher.Constraint("DistanceX", 3, 2, -1, 1, Q("0.34375 in")))
sketch1.addConstraint(Sketcher.Constraint("DistanceX", 9, 2, -1, 1, Q("0.65625 in")))
sketch1.addConstraint(Sketcher.Constraint("DistanceX", 17, 2, -1, 1, Q("1.375 in")))
sketch1.addConstraint(Sketcher.Constraint("DistanceX", 15, 2, 15, 1, Q("12.9 mm")))
sketch1.addConstraint(Sketcher.Constraint("DistanceY", 18, 1, 18, 2, Q("51 mm")))
sketch1.addConstraint(Sketcher.Constraint("DistanceY", 6, 2, -1, 1, Q("11.892 mm")))
sketch1.addConstraint(Sketcher.Constraint("DistanceX", 1, 2, 1, 1, Q("4.885314 mm")))
sketch1.addConstraint(Sketcher.Constraint("DistanceX", 5, 2, 5, 1, Q("2.554818 mm")))
pad1 = body.newObject("PartDesign::Pad", "Pad")
pad1.Profile = sketch1
pad1.Length = Q("0.23 in")
pad1.Reversed = True

# Sketch on XZ plane
sketch2 = body.newObject("Sketcher::SketchObject", "Sketch001")
sketch2.AttachmentSupport = (doc.getObject("XZ_Plane"), [""])
sketch2.MapMode = "FlatFace"
sketch2.AttachmentOffset = App.Placement(App.Vector(0, 0, -0.23 * 25.4), App.Rotation())
sketch2.addGeometry(Part.LineSegment(App.Vector(-34.925, -12.7, 0), App.Vector(-34.925, 12.7, 0)), False)
sketch2.addGeometry(Part.LineSegment(App.Vector(-34.925, 12.7, 0), App.Vector(-29.464697, 12.7, 0)), False)
sketch2.addGeometry(Part.LineSegment(App.Vector(-29.464697, 12.7, 0), App.Vector(-29.464697, -12.7, 0)), False)
sketch2.addGeometry(Part.LineSegment(App.Vector(-29.464697, -12.7, 0), App.Vector(-34.925, -12.7, 0)), False)
sketch2.addGeometry(Part.LineSegment(App.Vector(29.464697, -12.7, 0), App.Vector(29.464697, 12.7, 0)), False)
sketch2.addGeometry(Part.LineSegment(App.Vector(29.464697, 12.7, 0), App.Vector(34.925, 12.7, 0)), False)
sketch2.addGeometry(Part.LineSegment(App.Vector(34.925, 12.7, 0), App.Vector(34.925, -12.7, 0)), False)
sketch2.addGeometry(Part.LineSegment(App.Vector(34.925, -12.7, 0), App.Vector(29.464697, -12.7, 0)), False)
sketch2.addConstraint(Sketcher.Constraint("Coincident", 0, 2, 1, 1))
sketch2.addConstraint(Sketcher.Constraint("Coincident", 1, 2, 2, 1))
sketch2.addConstraint(Sketcher.Constraint("Coincident", 2, 2, 3, 1))
sketch2.addConstraint(Sketcher.Constraint("Coincident", 3, 2, 0, 1))
sketch2.addConstraint(Sketcher.Constraint("Coincident", 4, 2, 5, 1))
sketch2.addConstraint(Sketcher.Constraint("Coincident", 5, 2, 6, 1))
sketch2.addConstraint(Sketcher.Constraint("Coincident", 6, 2, 7, 1))
sketch2.addConstraint(Sketcher.Constraint("Coincident", 7, 2, 4, 1))
sketch2.addConstraint(Sketcher.Constraint("Vertical", 0))
sketch2.addConstraint(Sketcher.Constraint("Horizontal", 1))
sketch2.addConstraint(Sketcher.Constraint("Vertical", 2))
sketch2.addConstraint(Sketcher.Constraint("Horizontal", 3))
sketch2.addConstraint(Sketcher.Constraint("Vertical", 4))
sketch2.addConstraint(Sketcher.Constraint("Horizontal", 5))
sketch2.addConstraint(Sketcher.Constraint("Vertical", 6))
sketch2.addConstraint(Sketcher.Constraint("Horizontal", 7))
sketch2.addConstraint(Sketcher.Constraint("Symmetric", 2, 2, 4, 2, -1, 1))
sketch2.addConstraint(Sketcher.Constraint("Symmetric", 0, 2, 6, 2, -1, 1))
sketch2.addConstraint(Sketcher.Constraint("Horizontal", 1, 2, 4, 2))
sketch2.addConstraint(Sketcher.Constraint("DistanceY", 0, 1, 0, 2, Q("1 in")))
sketch2.addConstraint(Sketcher.Constraint("DistanceX", 0, 2, 5, 2, Q("2.75 in")))
sketch2.addConstraint(Sketcher.Constraint("DistanceX", 1, 1, 1, 2, Q("5.460303 mm")))
pocket1 = body.newObject("PartDesign::Pocket", "Pocket")
pocket1.Profile = sketch2
pocket1.Type = "ThroughAll"
pocket1.Reversed = True
doc.recompute()

fillet = body.newObject("PartDesign::Fillet", "Fillet")
fillet.Base = (pocket1, edges_at(pocket1, [
    (-34.925, 2.921, -12.7),
    (-29.465, 2.921, -12.7),
    (-29.465, 2.921, 12.7),
    (-34.925, 2.921, 12.7),
    (29.465, 2.921, -12.7),
    (34.925, 2.921, -12.7),
    (34.925, 2.921, 12.7),
    (29.465, 2.921, 12.7),
]))
fillet.Radius = Q("0.0625 in")

doc.recompute()
